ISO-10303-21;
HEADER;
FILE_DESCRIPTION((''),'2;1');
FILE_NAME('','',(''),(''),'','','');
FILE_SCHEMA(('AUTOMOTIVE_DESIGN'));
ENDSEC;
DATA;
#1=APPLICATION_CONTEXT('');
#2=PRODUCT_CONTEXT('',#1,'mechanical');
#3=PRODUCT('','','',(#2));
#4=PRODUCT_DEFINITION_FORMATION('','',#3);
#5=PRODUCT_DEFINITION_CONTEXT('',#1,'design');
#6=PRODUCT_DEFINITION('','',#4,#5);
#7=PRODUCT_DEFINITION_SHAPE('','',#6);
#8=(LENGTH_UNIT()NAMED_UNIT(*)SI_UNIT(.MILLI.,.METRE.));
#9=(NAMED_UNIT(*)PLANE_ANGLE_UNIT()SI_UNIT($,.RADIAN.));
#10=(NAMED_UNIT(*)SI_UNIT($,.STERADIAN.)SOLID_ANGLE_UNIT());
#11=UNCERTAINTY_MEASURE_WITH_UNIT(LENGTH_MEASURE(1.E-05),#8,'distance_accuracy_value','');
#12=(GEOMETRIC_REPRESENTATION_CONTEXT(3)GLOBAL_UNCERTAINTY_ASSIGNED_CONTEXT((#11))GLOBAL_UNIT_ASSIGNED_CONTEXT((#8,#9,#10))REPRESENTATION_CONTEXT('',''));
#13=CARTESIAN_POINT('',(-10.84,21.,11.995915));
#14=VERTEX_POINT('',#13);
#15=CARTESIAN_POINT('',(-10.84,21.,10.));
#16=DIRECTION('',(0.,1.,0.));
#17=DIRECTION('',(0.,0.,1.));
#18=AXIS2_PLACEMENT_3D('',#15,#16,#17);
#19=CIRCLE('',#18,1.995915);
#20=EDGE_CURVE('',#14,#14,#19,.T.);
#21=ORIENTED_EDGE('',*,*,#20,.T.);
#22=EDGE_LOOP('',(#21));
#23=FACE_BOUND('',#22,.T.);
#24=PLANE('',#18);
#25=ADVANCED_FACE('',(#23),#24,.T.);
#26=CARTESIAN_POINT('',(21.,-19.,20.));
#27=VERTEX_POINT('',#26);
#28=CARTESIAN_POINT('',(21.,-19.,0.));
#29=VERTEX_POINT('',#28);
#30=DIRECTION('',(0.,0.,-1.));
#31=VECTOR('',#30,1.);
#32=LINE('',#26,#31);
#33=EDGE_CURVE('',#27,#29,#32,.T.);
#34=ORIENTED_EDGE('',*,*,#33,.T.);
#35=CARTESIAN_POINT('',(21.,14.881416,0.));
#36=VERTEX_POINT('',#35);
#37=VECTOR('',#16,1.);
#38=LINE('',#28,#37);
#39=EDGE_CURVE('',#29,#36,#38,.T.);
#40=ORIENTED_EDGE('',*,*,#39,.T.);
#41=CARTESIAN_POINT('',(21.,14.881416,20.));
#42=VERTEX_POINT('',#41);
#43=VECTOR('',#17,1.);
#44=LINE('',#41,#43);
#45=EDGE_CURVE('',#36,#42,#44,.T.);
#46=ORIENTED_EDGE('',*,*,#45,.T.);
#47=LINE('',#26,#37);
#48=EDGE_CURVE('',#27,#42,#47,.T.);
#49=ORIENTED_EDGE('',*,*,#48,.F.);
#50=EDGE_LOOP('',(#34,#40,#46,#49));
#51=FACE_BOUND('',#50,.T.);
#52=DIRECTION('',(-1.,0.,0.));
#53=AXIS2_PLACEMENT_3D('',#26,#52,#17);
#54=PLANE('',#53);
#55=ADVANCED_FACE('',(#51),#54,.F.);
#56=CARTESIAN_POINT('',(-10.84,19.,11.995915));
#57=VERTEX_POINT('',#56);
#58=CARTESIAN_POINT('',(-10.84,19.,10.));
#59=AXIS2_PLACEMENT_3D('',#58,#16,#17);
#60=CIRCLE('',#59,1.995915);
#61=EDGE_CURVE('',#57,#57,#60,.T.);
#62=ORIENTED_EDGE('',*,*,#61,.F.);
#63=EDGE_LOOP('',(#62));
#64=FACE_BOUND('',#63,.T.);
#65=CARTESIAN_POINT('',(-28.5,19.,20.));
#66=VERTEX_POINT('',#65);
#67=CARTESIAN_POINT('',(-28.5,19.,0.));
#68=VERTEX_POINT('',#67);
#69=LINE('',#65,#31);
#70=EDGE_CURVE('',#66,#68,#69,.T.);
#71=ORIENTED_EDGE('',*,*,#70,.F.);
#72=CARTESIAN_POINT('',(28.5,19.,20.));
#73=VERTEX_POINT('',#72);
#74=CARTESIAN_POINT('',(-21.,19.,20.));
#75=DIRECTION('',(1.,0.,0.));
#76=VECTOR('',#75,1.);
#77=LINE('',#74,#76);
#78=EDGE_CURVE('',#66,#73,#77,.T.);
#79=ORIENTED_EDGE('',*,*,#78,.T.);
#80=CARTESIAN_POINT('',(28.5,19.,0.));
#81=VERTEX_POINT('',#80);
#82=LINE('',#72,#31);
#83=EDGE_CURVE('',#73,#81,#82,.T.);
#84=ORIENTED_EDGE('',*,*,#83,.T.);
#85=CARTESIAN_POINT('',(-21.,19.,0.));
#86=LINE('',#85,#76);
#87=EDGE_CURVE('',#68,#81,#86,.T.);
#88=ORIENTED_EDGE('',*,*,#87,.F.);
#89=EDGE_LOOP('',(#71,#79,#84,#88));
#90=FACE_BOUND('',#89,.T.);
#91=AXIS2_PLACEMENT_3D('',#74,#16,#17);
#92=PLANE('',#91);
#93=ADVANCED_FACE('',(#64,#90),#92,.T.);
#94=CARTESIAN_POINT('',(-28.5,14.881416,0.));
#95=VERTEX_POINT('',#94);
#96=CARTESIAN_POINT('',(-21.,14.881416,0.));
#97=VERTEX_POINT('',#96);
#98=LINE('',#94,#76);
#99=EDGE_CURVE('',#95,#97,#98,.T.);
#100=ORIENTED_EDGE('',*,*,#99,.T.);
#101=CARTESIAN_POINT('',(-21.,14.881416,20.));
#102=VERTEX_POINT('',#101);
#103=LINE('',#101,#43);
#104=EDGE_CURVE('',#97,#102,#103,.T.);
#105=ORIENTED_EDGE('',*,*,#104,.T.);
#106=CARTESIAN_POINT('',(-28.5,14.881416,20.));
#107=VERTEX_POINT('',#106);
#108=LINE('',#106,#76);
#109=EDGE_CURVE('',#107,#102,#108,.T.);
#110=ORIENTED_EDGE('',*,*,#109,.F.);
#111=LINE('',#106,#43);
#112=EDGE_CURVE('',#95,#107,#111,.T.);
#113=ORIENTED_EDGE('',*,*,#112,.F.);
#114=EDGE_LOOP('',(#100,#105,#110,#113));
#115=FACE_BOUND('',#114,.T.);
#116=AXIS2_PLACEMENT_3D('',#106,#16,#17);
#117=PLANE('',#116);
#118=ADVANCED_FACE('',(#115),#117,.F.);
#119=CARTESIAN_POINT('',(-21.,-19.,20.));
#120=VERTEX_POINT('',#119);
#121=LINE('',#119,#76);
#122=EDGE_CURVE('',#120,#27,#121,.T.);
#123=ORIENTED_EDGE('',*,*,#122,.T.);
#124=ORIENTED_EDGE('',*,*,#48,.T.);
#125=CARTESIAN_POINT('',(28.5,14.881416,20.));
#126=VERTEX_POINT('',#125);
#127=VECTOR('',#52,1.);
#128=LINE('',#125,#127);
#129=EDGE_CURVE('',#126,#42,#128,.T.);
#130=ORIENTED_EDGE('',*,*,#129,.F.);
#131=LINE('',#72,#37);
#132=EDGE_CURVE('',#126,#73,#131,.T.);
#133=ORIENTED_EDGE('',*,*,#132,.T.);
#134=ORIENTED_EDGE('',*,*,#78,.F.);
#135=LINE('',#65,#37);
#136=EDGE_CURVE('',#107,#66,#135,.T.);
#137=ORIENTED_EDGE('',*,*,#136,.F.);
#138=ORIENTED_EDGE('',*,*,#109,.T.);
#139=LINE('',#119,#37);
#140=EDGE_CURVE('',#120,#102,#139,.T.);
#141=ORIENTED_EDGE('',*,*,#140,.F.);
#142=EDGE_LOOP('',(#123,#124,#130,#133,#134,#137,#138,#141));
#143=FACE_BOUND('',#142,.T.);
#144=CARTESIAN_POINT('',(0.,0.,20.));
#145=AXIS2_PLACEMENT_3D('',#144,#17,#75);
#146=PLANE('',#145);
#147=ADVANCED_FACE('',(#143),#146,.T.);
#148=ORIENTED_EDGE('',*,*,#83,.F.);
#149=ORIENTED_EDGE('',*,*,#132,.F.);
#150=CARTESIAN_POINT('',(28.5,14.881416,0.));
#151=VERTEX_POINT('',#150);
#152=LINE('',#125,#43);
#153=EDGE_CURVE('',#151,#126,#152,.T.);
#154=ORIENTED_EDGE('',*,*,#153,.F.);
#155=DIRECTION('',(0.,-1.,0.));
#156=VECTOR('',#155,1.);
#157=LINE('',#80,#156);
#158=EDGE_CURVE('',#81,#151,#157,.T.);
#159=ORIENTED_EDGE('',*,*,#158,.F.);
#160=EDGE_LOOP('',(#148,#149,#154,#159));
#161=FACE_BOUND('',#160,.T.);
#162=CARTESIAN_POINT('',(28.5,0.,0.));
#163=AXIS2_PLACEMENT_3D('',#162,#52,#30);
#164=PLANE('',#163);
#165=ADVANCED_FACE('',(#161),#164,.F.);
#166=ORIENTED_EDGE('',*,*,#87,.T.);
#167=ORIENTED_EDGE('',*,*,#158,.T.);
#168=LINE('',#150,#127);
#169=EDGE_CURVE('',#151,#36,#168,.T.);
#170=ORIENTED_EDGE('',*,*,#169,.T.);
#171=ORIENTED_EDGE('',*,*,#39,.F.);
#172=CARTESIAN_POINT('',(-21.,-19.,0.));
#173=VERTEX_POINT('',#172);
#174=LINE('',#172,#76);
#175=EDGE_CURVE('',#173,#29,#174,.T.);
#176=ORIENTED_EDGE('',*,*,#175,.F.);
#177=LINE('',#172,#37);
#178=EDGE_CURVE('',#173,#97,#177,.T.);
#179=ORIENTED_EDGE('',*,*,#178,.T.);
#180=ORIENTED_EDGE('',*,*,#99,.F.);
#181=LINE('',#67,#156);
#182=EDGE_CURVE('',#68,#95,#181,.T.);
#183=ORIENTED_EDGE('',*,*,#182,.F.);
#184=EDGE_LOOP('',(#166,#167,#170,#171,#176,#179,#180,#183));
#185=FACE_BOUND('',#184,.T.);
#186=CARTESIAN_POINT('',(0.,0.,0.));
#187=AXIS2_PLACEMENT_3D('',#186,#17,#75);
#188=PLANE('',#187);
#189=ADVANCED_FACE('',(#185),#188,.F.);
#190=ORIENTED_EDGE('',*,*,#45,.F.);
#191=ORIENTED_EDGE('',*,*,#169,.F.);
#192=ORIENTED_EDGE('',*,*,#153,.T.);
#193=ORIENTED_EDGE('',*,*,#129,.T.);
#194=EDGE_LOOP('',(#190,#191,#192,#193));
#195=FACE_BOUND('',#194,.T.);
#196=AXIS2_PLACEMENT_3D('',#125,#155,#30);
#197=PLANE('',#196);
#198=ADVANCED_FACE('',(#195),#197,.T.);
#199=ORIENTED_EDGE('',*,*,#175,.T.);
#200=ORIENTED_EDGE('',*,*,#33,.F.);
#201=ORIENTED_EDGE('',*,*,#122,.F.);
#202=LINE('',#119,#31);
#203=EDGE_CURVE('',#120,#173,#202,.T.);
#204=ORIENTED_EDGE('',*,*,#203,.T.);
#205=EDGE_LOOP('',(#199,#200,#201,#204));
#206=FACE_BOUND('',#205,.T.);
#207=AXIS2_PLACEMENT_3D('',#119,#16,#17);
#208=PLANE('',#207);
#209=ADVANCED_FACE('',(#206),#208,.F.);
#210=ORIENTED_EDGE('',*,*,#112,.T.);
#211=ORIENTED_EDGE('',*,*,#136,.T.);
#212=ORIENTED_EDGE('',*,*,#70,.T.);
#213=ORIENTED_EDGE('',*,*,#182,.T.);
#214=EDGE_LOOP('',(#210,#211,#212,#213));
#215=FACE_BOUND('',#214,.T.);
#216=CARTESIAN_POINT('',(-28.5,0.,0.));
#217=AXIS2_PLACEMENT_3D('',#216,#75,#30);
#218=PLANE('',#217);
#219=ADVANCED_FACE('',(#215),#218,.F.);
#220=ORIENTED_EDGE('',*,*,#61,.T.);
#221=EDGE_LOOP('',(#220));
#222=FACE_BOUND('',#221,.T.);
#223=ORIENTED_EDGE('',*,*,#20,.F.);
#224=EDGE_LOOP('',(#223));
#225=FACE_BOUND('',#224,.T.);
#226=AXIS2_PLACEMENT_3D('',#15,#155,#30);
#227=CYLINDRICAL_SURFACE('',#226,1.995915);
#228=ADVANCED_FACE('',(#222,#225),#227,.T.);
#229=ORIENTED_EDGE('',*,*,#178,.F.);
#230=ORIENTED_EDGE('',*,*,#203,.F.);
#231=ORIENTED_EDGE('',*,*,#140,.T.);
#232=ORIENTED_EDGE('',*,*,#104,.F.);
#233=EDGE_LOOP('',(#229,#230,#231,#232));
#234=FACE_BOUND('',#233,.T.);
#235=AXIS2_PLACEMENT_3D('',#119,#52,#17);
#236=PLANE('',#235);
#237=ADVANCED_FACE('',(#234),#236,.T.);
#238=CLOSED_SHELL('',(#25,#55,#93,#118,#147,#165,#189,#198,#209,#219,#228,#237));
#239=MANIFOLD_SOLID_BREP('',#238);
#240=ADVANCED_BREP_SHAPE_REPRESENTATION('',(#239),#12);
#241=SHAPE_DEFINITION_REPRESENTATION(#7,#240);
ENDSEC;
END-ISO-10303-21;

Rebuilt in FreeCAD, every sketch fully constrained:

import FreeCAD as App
import Part
import Sketcher

V = App.Vector

doc = App.newDocument("Part")
params = doc.addObject("Spreadsheet::Sheet", "Params")
for row, (alias, value) in enumerate([
    ("sketch1_width", "42 mm"),
    ("sketch1_height", "38 mm"),
    ("pad1_length", "20 mm"),
    ("pad2_length", "2 mm"),
    ("sketch3_height", "20 mm"),
    ("pad3_length", "7.5 mm"),
], start=1):
    params.set(f"A{row}", alias)
    params.set(f"B{row}", "=" + value)
    params.setAlias(f"B{row}", alias)

body = doc.addObject("PartDesign::Body", "Body")

# Sketch on XY plane
sketch1 = body.newObject("Sketcher::SketchObject", "Sketch")
sketch1.AttachmentSupport = (doc.getObject("XY_Plane"), [""])
sketch1.MapMode = "FlatFace"
sketch1.addGeometry([
    Part.LineSegment(V(-21, 19, 0), V(-21, -19, 0)),
    Part.LineSegment(V(-21, -19, 0), V(21, -19, 0)),
    Part.LineSegment(V(21, -19, 0), V(21, 19, 0)),
    Part.LineSegment(V(21, 19, 0), V(-21, 19, 0)),
], False)
sketch1.addConstraint([
    Sketcher.Constraint("Coincident", 0, 2, 1, 1),
    Sketcher.Constraint("Coincident", 1, 2, 2, 1),
    Sketcher.Constraint("Coincident", 2, 2, 3, 1),
    Sketcher.Constraint("Coincident", 3, 2, 0, 1),
    Sketcher.Constraint("Vertical", 0),
    Sketcher.Constraint("Horizontal", 1),
    Sketcher.Constraint("Vertical", 2),
    Sketcher.Constraint("Horizontal", 3),
    Sketcher.Constraint("Symmetric", 0, 2, 2, 2, -1, 1),
    Sketcher.Constraint("DistanceX", 1, 1, 1, 2, 42.0),
    Sketcher.Constraint("DistanceY", 0, 2, 0, 1, 38.0),
])
sketch1.setExpression("Constraints[9]", "Params.sketch1_width")
sketch1.setExpression("Constraints[10]", "Params.sketch1_height")
pad1 = body.newObject("PartDesign::Pad", "Pad")
pad1.Profile = sketch1
pad1.setExpression("Length", "Params.pad1_length")

# Sketch on XZ plane
sketch2 = body.newObject("Sketcher::SketchObject", "Sketch001")
sketch2.AttachmentSupport = (doc.getObject("XZ_Plane"), [""])
sketch2.MapMode = "FlatFace"
sketch2.AttachmentOffset = App.Placement(V(0, 0, -19), App.Rotation())
sketch2.addGeometry(Part.Circle(V(-10.8, 10, 0), V(0, 0, 1), 2), False)
sketch2.addConstraint([
    Sketcher.Constraint("DistanceY", -1, 1, 0, 3, 10.0),
    Sketcher.Constraint("Diameter", 0, 3.991829),
    Sketcher.Constraint("DistanceX", 0, 3, -1, 1, 10.84),
])
pad2 = body.newObject("PartDesign::Pad", "Pad001")
pad2.Profile = sketch2
pad2.setExpression("Length", "Params.pad2_length")
pad2.Reversed = True

# Sketch on YZ plane
sketch3 = body.newObject("Sketcher::SketchObject", "Sketch002")
sketch3.AttachmentSupport = (doc.getObject("YZ_Plane"), [""])
sketch3.MapMode = "FlatFace"
sketch3.AttachmentOffset = App.Placement(V(0, 0, -21), App.Rotation())
sketch3.addGeometry([
    Part.LineSegment(V(19, 0, 0), V(14.9, 0, 0)),
    Part.LineSegment(V(14.9, 0, 0), V(14.9, 20, 0)),
    Part.LineSegment(V(14.9, 20, 0), V(19, 20, 0)),
    Part.LineSegment(V(19, 20, 0), V(19, 0, 0)),
], False)
sketch3.addConstraint([
    Sketcher.Constraint("Coincident", 0, 2, 1, 1),
    Sketcher.Constraint("Coincident", 1, 2, 2, 1),
    Sketcher.Constraint("Coincident", 2, 2, 3, 1),
    Sketcher.Constraint("Coincident", 3, 2, 0, 1),
    Sketcher.Constraint("Horizontal", 0),
    Sketcher.Constraint("Vertical", 1),
    Sketcher.Constraint("Horizontal", 2),
    Sketcher.Constraint("Vertical", 3),
    Sketcher.Constraint("PointOnObject", 0, 2, -1),
    Sketcher.Constraint("DistanceY", 1, 1, 1, 2, 20.0),
    Sketcher.Constraint("DistanceX", -1, 1, 2, 2, 19.0),
    Sketcher.Constraint("DistanceX", 0, 2, 0, 1, 4.118584),
])
sketch3.setExpression("Constraints[9]", "Params.sketch3_height")
pad3 = body.newObject("PartDesign::Pad", "Pad002")
pad3.Profile = sketch3
pad3.setExpression("Length", "Params.pad3_length")
pad3.Reversed = True
doc.recompute()

mirrored = body.newObject("PartDesign::Mirrored", "Mirrored")
mirrored.Originals = [pad3]
mirrored.MirrorPlane = (doc.getObject("YZ_Plane"), [""])
body.Tip = mirrored

doc.recompute()
